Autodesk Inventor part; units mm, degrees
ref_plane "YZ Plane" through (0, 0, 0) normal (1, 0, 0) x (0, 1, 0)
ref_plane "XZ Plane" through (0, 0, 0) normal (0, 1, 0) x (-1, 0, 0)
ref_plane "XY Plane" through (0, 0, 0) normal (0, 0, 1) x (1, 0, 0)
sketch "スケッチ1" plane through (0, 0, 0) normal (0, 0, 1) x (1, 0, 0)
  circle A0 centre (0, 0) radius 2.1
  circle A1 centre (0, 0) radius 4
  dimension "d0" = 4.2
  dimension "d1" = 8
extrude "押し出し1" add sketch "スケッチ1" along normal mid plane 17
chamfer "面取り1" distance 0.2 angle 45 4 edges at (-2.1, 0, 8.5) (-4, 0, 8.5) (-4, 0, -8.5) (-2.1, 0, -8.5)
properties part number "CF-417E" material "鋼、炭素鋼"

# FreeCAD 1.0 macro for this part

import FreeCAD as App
import Part
import Sketcher


def edges_at(feature, points):
    """Names of the edges that pass closest to the given points."""
    edges = feature.Shape.Edges
    near = lambda p: min(range(len(edges)), key=lambda i: edges[i].distToShape(Part.Vertex(*p))[0])
    return sorted({f"Edge{near(p) + 1}" for p in points})

doc = App.newDocument("Part")
params = doc.addObject("Spreadsheet::Sheet", "Params")
for row, (alias, value) in enumerate([
    ("sketch1_diameter", "8 mm"),
    ("sketch1_diameter2", "4.2 mm"),
    ("pad1_length", "17 mm"),
    ("chamfer_size", "0.2 mm"),
], start=1):
    params.set(f"A{row}", alias)
    params.set(f"B{row}", "=" + value)
    params.setAlias(f"B{row}", alias)

body = doc.addObject("PartDesign::Body", "Body")

# Sketch on XY plane
sketch1 = body.newObject("Sketcher::SketchObject", "Sketch")
sketch1.AttachmentSupport = (doc.getObject("XY_Plane"), [""])
sketch1.MapMode = "FlatFace"
sketch1.addGeometry([
    Part.Circle(App.Vector(0, 0, 0), App.Vector(0, 0, 1), 4),
    Part.Circle(App.Vector(0, 0, 0), App.Vector(0, 0, 1), 2.1),
], False)
sketch1.addConstraint([
    Sketcher.Constraint("Coincident", 0, 3, -1, 1),
    Sketcher.Constraint("Coincident", 1, 3, -1, 1),
    Sketcher.Constraint("Diameter", 0, 8.0),
    Sketcher.Constraint("Diameter", 1, 4.2),
])
sketch1.setExpression("Constraints[2]", "Params.sketch1_diameter")
sketch1.setExpression("Constraints[3]", "Params.sketch1_diameter2")
pad1 = body.newObject("PartDesign::Pad", "Pad")
pad1.Profile = sketch1
pad1.setExpression("Length", "Params.pad1_length")
pad1.Midplane = True
doc.recompute()

chamfer = body.newObject("PartDesign::Chamfer", "Chamfer")
chamfer.Base = (pad1, edges_at(pad1, [
    (-2.1, 0, 8.5),
    (-4, 0, 8.5),
    (-4, 0, -8.5),
    (-2.1, 0, -8.5),
]))
chamfer.setExpression("Size", "Params.chamfer_size")

doc.recompute()
